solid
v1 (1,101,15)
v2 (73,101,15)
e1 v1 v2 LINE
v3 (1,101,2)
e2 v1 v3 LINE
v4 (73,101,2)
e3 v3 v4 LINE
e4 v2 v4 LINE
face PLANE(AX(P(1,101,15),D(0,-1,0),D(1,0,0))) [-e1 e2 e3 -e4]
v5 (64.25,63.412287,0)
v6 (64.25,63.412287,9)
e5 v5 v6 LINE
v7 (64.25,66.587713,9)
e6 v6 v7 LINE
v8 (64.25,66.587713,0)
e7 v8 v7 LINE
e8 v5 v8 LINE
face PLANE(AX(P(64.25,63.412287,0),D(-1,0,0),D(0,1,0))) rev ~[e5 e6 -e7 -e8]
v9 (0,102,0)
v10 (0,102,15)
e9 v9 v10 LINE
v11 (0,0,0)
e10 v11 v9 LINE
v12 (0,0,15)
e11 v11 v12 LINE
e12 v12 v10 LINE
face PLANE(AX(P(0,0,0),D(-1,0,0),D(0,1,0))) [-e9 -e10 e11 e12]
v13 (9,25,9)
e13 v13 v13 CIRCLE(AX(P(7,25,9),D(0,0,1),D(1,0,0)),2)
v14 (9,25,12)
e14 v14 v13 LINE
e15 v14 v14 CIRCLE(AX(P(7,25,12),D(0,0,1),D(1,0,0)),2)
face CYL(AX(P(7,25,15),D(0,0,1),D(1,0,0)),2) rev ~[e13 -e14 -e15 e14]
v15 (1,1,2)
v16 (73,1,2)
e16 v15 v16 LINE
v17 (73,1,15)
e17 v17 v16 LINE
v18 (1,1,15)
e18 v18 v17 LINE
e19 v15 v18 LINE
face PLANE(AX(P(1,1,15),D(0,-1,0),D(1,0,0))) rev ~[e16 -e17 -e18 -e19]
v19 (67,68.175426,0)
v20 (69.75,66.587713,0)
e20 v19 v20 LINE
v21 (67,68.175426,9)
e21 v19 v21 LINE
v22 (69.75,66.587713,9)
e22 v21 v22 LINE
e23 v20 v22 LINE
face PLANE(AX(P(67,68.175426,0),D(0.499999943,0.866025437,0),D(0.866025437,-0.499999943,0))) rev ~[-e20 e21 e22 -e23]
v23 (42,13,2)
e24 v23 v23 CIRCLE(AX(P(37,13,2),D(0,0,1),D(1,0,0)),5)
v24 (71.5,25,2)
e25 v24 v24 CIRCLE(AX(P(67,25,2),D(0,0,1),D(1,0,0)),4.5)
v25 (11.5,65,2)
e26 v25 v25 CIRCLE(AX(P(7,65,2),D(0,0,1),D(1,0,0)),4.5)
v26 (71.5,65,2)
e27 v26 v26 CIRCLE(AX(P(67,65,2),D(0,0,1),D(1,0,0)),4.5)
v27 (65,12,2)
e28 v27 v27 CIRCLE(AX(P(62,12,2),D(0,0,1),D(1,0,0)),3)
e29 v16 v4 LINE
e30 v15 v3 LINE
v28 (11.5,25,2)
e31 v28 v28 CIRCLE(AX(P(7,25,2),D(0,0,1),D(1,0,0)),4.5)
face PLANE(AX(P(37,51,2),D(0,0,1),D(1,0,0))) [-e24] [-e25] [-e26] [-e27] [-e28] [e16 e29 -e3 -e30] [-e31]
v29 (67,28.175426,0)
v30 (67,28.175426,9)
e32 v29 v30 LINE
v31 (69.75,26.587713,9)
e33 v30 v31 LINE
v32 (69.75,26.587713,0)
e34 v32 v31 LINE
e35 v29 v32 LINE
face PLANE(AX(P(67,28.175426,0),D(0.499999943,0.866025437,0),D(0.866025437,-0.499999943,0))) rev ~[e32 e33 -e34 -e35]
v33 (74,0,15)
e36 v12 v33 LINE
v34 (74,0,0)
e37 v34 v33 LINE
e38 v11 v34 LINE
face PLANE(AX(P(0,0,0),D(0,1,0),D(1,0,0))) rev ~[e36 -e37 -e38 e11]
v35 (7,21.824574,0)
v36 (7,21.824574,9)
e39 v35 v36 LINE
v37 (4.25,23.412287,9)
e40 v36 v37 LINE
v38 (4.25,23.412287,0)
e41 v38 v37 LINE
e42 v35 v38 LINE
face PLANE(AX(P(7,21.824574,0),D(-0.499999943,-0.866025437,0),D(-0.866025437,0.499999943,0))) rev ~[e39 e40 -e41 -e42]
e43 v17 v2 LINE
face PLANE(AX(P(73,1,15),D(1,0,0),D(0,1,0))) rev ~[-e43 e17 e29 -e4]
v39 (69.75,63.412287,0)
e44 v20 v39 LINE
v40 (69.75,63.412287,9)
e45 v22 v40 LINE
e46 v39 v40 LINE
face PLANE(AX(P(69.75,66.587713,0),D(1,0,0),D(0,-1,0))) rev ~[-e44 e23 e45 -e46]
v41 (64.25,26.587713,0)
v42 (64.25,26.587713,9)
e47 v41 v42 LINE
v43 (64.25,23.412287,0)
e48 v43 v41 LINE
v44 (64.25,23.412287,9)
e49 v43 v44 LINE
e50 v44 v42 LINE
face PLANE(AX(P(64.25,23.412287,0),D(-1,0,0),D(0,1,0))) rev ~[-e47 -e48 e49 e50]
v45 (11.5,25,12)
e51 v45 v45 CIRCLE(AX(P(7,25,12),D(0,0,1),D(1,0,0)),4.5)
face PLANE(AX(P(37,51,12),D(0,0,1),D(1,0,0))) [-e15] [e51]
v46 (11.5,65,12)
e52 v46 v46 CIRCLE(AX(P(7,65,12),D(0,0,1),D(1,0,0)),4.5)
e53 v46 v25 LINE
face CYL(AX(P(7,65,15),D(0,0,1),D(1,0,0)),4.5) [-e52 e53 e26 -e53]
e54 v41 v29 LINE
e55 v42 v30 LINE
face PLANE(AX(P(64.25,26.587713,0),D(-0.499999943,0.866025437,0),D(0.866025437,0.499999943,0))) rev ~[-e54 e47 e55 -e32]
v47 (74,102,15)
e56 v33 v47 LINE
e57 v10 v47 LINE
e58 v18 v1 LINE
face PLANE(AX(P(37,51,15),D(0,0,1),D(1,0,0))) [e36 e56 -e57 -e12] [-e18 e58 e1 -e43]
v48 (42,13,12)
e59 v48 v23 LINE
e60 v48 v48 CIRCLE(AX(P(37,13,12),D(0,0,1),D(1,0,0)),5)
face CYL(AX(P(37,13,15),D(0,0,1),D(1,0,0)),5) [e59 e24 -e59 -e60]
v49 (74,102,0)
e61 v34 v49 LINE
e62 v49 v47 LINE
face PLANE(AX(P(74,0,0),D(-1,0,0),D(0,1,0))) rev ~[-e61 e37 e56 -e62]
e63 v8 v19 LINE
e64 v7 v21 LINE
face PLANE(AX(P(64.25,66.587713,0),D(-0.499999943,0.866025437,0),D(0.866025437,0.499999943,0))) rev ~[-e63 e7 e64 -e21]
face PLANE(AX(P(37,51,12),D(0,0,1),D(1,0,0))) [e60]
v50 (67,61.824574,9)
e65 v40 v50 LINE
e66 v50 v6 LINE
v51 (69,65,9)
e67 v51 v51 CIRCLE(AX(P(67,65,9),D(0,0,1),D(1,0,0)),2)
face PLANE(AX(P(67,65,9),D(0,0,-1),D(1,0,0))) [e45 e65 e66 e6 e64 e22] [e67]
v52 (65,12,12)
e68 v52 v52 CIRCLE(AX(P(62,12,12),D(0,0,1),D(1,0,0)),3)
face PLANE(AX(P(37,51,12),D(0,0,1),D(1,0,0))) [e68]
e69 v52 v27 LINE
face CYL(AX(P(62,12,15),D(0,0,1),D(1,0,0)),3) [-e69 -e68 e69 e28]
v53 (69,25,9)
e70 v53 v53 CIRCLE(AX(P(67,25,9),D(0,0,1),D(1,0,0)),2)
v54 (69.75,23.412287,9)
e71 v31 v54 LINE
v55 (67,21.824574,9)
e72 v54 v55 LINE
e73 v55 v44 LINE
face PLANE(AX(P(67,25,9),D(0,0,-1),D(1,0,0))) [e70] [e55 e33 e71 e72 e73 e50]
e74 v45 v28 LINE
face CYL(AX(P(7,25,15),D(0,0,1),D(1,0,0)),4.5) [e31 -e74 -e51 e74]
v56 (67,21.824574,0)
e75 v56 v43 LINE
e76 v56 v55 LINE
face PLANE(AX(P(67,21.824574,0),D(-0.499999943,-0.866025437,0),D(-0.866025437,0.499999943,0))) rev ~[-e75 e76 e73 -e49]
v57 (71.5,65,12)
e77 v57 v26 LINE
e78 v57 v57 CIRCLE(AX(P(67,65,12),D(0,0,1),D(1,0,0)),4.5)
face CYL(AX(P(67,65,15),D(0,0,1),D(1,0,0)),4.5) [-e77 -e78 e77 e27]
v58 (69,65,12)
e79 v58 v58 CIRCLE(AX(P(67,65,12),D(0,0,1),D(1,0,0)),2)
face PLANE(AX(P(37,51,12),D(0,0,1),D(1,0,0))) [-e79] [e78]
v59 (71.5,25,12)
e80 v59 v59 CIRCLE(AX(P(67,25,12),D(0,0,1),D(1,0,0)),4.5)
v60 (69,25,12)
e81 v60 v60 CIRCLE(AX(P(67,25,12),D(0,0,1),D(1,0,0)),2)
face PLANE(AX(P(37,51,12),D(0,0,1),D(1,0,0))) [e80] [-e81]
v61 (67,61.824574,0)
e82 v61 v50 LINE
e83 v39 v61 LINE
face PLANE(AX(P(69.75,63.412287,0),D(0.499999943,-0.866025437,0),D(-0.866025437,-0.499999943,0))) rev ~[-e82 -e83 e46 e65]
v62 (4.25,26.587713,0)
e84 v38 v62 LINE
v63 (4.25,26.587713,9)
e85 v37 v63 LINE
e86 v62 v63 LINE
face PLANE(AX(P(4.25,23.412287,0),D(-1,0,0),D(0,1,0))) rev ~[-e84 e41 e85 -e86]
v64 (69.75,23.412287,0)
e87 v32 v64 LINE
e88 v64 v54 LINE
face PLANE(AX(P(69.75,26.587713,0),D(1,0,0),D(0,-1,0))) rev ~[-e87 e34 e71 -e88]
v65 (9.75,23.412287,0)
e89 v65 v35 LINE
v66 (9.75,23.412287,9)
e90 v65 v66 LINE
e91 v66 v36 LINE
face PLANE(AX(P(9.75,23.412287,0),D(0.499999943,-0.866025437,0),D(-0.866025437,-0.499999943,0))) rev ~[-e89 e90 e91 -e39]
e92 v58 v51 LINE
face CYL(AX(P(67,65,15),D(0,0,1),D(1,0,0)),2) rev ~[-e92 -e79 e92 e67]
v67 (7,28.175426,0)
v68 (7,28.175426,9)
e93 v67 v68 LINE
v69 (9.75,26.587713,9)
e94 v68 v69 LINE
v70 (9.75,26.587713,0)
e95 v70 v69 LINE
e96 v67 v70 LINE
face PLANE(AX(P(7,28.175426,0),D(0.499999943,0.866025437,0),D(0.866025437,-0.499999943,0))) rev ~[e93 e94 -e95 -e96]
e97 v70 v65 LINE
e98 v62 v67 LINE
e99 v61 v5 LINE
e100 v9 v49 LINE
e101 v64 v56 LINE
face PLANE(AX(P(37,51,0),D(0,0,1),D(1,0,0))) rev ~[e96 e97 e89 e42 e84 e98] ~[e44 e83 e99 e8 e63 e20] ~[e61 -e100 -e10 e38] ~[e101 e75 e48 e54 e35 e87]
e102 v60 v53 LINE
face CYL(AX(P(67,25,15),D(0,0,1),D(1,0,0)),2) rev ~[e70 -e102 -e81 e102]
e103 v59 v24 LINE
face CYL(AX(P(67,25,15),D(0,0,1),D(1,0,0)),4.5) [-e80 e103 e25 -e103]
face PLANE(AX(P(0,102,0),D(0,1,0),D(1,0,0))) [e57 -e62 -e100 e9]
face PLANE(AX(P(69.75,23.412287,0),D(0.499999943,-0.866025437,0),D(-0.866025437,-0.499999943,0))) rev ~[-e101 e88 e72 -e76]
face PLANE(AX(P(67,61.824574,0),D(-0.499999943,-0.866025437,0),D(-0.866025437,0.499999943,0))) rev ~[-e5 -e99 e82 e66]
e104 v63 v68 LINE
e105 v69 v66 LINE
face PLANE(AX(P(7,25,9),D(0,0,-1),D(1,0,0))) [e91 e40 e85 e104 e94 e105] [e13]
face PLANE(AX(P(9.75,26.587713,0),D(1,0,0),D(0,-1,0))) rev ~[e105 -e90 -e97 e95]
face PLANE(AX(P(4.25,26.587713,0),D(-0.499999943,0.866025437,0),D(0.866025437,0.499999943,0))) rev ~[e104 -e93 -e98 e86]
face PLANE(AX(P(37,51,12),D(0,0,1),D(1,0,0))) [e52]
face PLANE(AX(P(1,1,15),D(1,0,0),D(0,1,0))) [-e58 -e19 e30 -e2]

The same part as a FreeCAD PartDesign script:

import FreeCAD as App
import Part
import Sketcher

V = App.Vector
Q = App.Units.Quantity


def add_polygon(sketch, points):
    """Adds a closed chain of lines whose ends are joined by coincident constraints."""
    first, n = sketch.GeometryCount, len(points)
    for a, b in zip(points, points[1:] + points[:1]):
        sketch.addGeometry(Part.LineSegment(App.Vector(*a, 0), App.Vector(*b, 0)), False)
    for i in range(n):
        sketch.addConstraint(Sketcher.Constraint("Coincident", first + i, 2, first + (i + 1) % n, 1))

doc = App.newDocument("Part")
body = doc.addObject("PartDesign::Body", "Body")

# Sketch on XY plane
sketch1 = body.newObject("Sketcher::SketchObject", "Sketch")
sketch1.AttachmentSupport = (doc.getObject("XY_Plane"), [""])
sketch1.MapMode = "FlatFace"
add_polygon(sketch1, [(0, 102), (0, 0), (74, 0), (74, 102)])  # lines 0-3
sketch1.addConstraint(Sketcher.Constraint("Vertical", 0))
sketch1.addConstraint(Sketcher.Constraint("Horizontal", 1))
sketch1.addConstraint(Sketcher.Constraint("Vertical", 2))
sketch1.addConstraint(Sketcher.Constraint("Horizontal", 3))
sketch1.addConstraint(Sketcher.Constraint("Coincident", 0, 2, -1, 1))
sketch1.addConstraint(Sketcher.Constraint("DistanceX", 1, 1, 1, 2, Q("74 mm")))
sketch1.addConstraint(Sketcher.Constraint("DistanceY", 0, 2, 0, 1, Q("102 mm")))
pad1 = body.newObject("PartDesign::Pad", "Pad")
pad1.Profile = sketch1
pad1.Length = 15

# Sketch on XY plane
sketch2 = body.newObject("Sketcher::SketchObject", "Sketch001")
sketch2.AttachmentSupport = (doc.getObject("XY_Plane"), [""])
sketch2.MapMode = "FlatFace"
sketch2.AttachmentOffset = App.Placement(V(0, 0, 15), App.Rotation())
add_polygon(sketch2, [(1, 101), (1, 1), (73, 1), (73, 101)])  # lines 0-3
sketch2.addGeometry(Part.Circle(V(7, 25, 0), V(0, 0, 1), 4.5), False)  # 4
sketch2.addGeometry(Part.Circle(V(37, 13, 0), V(0, 0, 1), 5), False)  # 5
sketch2.addGeometry(Part.Circle(V(62, 12, 0), V(0, 0, 1), 3), False)  # 6
sketch2.addGeometry(Part.Circle(V(67, 25, 0), V(0, 0, 1), 4.5), False)  # 7
sketch2.addGeometry(Part.Circle(V(7, 65, 0), V(0, 0, 1), 4.5), False)  # 8
sketch2.addGeometry(Part.Circle(V(67, 65, 0), V(0, 0, 1), 4.5), False)  # 9
sketch2.addConstraint(Sketcher.Constraint("Vertical", 0))
sketch2.addConstraint(Sketcher.Constraint("Horizontal", 1))
sketch2.addConstraint(Sketcher.Constraint("Vertical", 2))
sketch2.addConstraint(Sketcher.Constraint("Horizontal", 3))
sketch2.addConstraint(Sketcher.Constraint("Equal", 4, 7))
sketch2.addConstraint(Sketcher.Constraint("Equal", 7, 8))
sketch2.addConstraint(Sketcher.Constraint("Equal", 8, 9))
sketch2.addConstraint(Sketcher.Constraint("Horizontal", 4, 3, 7, 3))
sketch2.addConstraint(Sketcher.Constraint("Horizontal", 8, 3, 9, 3))
sketch2.addConstraint(Sketcher.Constraint("Vertical", 4, 3, 8, 3))
sketch2.addConstraint(Sketcher.Constraint("Vertical", 7, 3, 9, 3))
sketch2.addConstraint(Sketcher.Constraint("Diameter", 4, Q("9 mm")))
sketch2.addConstraint(Sketcher.Constraint("Diameter", 5, Q("10 mm")))
sketch2.addConstraint(Sketcher.Constraint("Diameter", 6, Q("6 mm")))
sketch2.addConstraint(Sketcher.Constraint("DistanceX", 1, 1, 1, 2, Q("72 mm")))
sketch2.addConstraint(Sketcher.Constraint("DistanceY", 0, 2, 0, 1, Q("100 mm")))
sketch2.addConstraint(Sketcher.Constraint("DistanceX", -1, 1, 4, 3, Q("7 mm")))
sketch2.addConstraint(Sketcher.Constraint("DistanceY", -1, 1, 4, 3, Q("25 mm")))
sketch2.addConstraint(Sketcher.Constraint("DistanceX", -1, 1, 5, 3, Q("37 mm")))
sketch2.addConstraint(Sketcher.Constraint("DistanceY", -1, 1, 5, 3, Q("13 mm")))
sketch2.addConstraint(Sketcher.Constraint("DistanceX", -1, 1, 6, 3, Q("62 mm")))
sketch2.addConstraint(Sketcher.Constraint("DistanceY", -1, 1, 6, 3, Q("12 mm")))
sketch2.addConstraint(Sketcher.Constraint("DistanceX", -1, 1, 7, 3, Q("67 mm")))
sketch2.addConstraint(Sketcher.Constraint("DistanceY", -1, 1, 8, 3, Q("65 mm")))
sketch2.addConstraint(Sketcher.Constraint("DistanceX", -1, 1, 0, 2, Q("1 mm")))
sketch2.addConstraint(Sketcher.Constraint("DistanceY", -1, 1, 0, 2, Q("1 mm")))
pocket1 = body.newObject("PartDesign::Pocket", "Pocket")
pocket1.Profile = sketch2
pocket1.Length = 13

# Sketch on XY plane
sketch3 = body.newObject("Sketcher::SketchObject", "Sketch002")
sketch3.AttachmentSupport = (doc.getObject("XY_Plane"), [""])
sketch3.MapMode = "FlatFace"
sketch3.AttachmentOffset = App.Placement(V(0, 0, 15), App.Rotation())
sketch3.addGeometry(Part.Circle(V(67, 65, 0), V(0, 0, 1), 2), False)
sketch3.addGeometry(Part.Circle(V(67, 25, 0), V(0, 0, 1), 2), False)
sketch3.addGeometry(Part.Circle(V(7, 25, 0), V(0, 0, 1), 2), False)
sketch3.addConstraint(Sketcher.Constraint("Equal", 0, 1))
sketch3.addConstraint(Sketcher.Constraint("Equal", 1, 2))
sketch3.addConstraint(Sketcher.Constraint("Horizontal", 1, 3, 2, 3))
sketch3.addConstraint(Sketcher.Constraint("Vertical", 0, 3, 1, 3))
sketch3.addConstraint(Sketcher.Constraint("Diameter", 0, Q("4 mm")))
sketch3.addConstraint(Sketcher.Constraint("DistanceX", -1, 1, 0, 3, Q("67 mm")))
sketch3.addConstraint(Sketcher.Constraint("DistanceY", -1, 1, 0, 3, Q("65 mm")))
sketch3.addConstraint(Sketcher.Constraint("DistanceY", -1, 1, 1, 3, Q("25 mm")))
sketch3.addConstraint(Sketcher.Constraint("DistanceX", -1, 1, 2, 3, Q("7 mm")))
pocket2 = body.newObject("PartDesign::Pocket", "Pocket001")
pocket2.Profile = sketch3
pocket2.Type = "ThroughAll"

# Sketch on XY plane
sketch4 = body.newObject("Sketcher::SketchObject", "Sketch003")
sketch4.AttachmentSupport = (doc.getObject("XY_Plane"), [""])
sketch4.MapMode = "FlatFace"
add_polygon(sketch4, [(9.75, 26.587713), (9.75, 23.412287), (7, 21.824574), (4.25, 23.412287), (4.25, 26.587713), (7, 28.175426)])  # lines 0-5
add_polygon(sketch4, [(69.75, 26.587713), (69.75, 23.412287), (67, 21.824574), (64.25, 23.412287), (64.25, 26.587713), (67, 28.175426)])  # lines 6-11
add_polygon(sketch4, [(69.75, 66.587713), (69.75, 63.412287), (67, 61.824574), (64.25, 63.412287), (64.25, 66.587713), (67, 68.175426)])  # lines 12-17
sketch4.addConstraint(Sketcher.Constraint("Vertical", 0))
sketch4.addConstraint(Sketcher.Constraint("Vertical", 3))
sketch4.addConstraint(Sketcher.Constraint("Vertical", 6))
sketch4.addConstraint(Sketcher.Constraint("Vertical", 9))
sketch4.addConstraint(Sketcher.Constraint("Vertical", 12))
sketch4.addConstraint(Sketcher.Constraint("Vertical", 15))
sketch4.addConstraint(Sketcher.Constraint("Parallel", 1, 4))
sketch4.addConstraint(Sketcher.Constraint("Parallel", 2, 5))
sketch4.addConstraint(Sketcher.Constraint("Parallel", 4, 7))
sketch4.addConstraint(Sketcher.Constraint("Parallel", 5, 8))
sketch4.addConstraint(Sketcher.Constraint("Parallel", 7, 10))
sketch4.addConstraint(Sketcher.Constraint("Parallel", 8, 11))
sketch4.addConstraint(Sketcher.Constraint("Parallel", 10, 13))
sketch4.addConstraint(Sketcher.Constraint("Parallel", 11, 14))
sketch4.addConstraint(Sketcher.Constraint("Parallel", 13, 16))
sketch4.addConstraint(Sketcher.Constraint("Parallel", 14, 17))
sketch4.addConstraint(Sketcher.Constraint("Horizontal", 0, 2, 2, 2))
sketch4.addConstraint(Sketcher.Constraint("Horizontal", 3, 2, 5, 2))
sketch4.addConstraint(Sketcher.Constraint("Horizontal", 2, 2, 6, 2))
sketch4.addConstraint(Sketcher.Constraint("Horizontal", 1, 2, 7, 2))
sketch4.addConstraint(Sketcher.Constraint("Horizontal", 6, 2, 8, 2))
sketch4.addConstraint(Sketcher.Constraint("Horizontal", 5, 2, 9, 2))
sketch4.addConstraint(Sketcher.Constraint("Horizontal", 4, 2, 10, 2))
sketch4.addConstraint(Sketcher.Constraint("Horizontal", 12, 2, 14, 2))
sketch4.addConstraint(Sketcher.Constraint("Horizontal", 15, 2, 17, 2))
sketch4.addConstraint(Sketcher.Constraint("Vertical", 1, 2, 4, 2))
sketch4.addConstraint(Sketcher.Constraint("Vertical", 11, 2, 12, 2))
sketch4.addConstraint(Sketcher.Constraint("Vertical", 10, 2, 13, 2))
sketch4.addConstraint(Sketcher.Constraint("Equal", 9, 12))
sketch4.addConstraint(Sketcher.Constraint("Angle", 1, Q("-150.000004 deg")))
sketch4.addConstraint(Sketcher.Constraint("DistanceX", -1, 1, 1, 2, Q("7 mm")))
sketch4.addConstraint(Sketcher.Constraint("DistanceX", -1, 1, 7, 2, Q("67 mm")))
sketch4.addConstraint(Sketcher.Constraint("DistanceY", 6, 2, 12, 2, Q("40 mm")))
sketch4.addConstraint(Sketcher.Constraint("DistanceX", 2, 2, 0, 2, Q("5.5 mm")))
sketch4.addConstraint(Sketcher.Constraint("DistanceY", 0, 2, 0, 1, Q("3.175426 mm")))
sketch4.addConstraint(Sketcher.Constraint("DistanceY", -1, 1, 0, 2, Q("23.412287 mm")))
pocket3 = body.newObject("PartDesign::Pocket", "Pocket002")
pocket3.Profile = sketch4
pocket3.Length = 9
pocket3.Reversed = True

# Sketch on XY plane
sketch5 = body.newObject("Sketcher::SketchObject", "Sketch004")
sketch5.AttachmentSupport = (doc.getObject("XY_Plane"), [""])
sketch5.MapMode = "FlatFace"
sketch5.AttachmentOffset = App.Placement(V(0, 0, 15), App.Rotation())
add_polygon(sketch5, [(1, 101), (1, 1), (73, 1), (73, 101)])  # lines 0-3
sketch5.addConstraint(Sketcher.Constraint("Vertical", 0))
sketch5.addConstraint(Sketcher.Constraint("Horizontal", 1))
sketch5.addConstraint(Sketcher.Constraint("Vertical", 2))
sketch5.addConstraint(Sketcher.Constraint("Horizontal", 3))
sketch5.addConstraint(Sketcher.Constraint("DistanceX", 1, 1, 1, 2, Q("72 mm")))
sketch5.addConstraint(Sketcher.Constraint("DistanceY", 0, 2, 0, 1, Q("100 mm")))
sketch5.addConstraint(Sketcher.Constraint("DistanceX", -1, 1, 0, 2, Q("1 mm")))
sketch5.addConstraint(Sketcher.Constraint("DistanceY", -1, 1, 0, 2, Q("1 mm")))
pocket4 = body.newObject("PartDesign::Pocket", "Pocket003")
pocket4.Profile = sketch5
pocket4.Length = 3

doc.recompute()
